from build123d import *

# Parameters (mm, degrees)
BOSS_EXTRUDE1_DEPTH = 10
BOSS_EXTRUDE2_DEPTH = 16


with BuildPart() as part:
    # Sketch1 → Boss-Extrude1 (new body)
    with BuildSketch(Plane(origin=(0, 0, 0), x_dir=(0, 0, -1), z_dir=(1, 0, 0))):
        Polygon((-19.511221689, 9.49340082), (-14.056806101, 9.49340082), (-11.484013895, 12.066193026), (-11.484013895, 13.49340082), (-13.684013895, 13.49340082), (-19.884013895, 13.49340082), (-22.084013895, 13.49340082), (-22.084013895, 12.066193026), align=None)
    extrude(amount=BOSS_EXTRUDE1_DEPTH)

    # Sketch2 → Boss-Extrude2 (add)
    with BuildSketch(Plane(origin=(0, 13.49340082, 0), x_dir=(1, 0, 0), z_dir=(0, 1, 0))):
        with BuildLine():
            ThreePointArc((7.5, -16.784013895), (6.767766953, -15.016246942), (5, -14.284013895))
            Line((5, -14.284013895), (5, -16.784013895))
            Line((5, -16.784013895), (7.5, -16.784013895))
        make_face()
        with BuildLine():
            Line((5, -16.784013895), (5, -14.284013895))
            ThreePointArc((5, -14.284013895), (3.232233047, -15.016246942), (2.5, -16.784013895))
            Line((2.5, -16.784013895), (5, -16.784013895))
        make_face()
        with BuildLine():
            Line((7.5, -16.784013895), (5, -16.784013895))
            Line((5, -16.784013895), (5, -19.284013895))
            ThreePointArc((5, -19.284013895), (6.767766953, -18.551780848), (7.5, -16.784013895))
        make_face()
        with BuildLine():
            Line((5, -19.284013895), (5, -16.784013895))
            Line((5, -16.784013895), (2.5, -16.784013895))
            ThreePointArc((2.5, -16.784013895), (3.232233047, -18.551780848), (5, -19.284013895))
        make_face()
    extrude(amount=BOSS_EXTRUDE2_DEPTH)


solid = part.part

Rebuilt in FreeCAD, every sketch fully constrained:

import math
import FreeCAD as App
import Part
import Sketcher
Q = App.Units.Quantity

doc = App.newDocument("Part")
body = doc.addObject("PartDesign::Body", "Body")

sketch1 = doc.addObject("Sketcher::SketchObject", "Sketch")
body.addObject(sketch1)
sketch1.AttachmentSupport = (doc.YZ_Plane, [""])
sketch1.MapMode = "FlatFace"
sketch1.addGeometry(Part.LineSegment(App.Vector(9.5, 19.5, 0), App.Vector(9.5, 14.1, 0)), False)
sketch1.addGeometry(Part.LineSegment(App.Vector(9.5, 14.1, 0), App.Vector(12.1, 11.5, 0)), False)
sketch1.addGeometry(Part.LineSegment(App.Vector(12.1, 11.5, 0), App.Vector(13.5, 11.5, 0)), False)
sketch1.addGeometry(Part.LineSegment(App.Vector(13.5, 11.5, 0), App.Vector(13.5, 22.1, 0)), False)
sketch1.addGeometry(Part.LineSegment(App.Vector(13.5, 22.1, 0), App.Vector(12.1, 22.1, 0)), False)
sketch1.addGeometry(Part.LineSegment(App.Vector(12.1, 22.1, 0), App.Vector(9.5, 19.5, 0)), False)
sketch1.addConstraint(Sketcher.Constraint("Coincident", 0, 2, 1, 1))
sketch1.addConstraint(Sketcher.Constraint("Coincident", 1, 2, 2, 1))
sketch1.addConstraint(Sketcher.Constraint("Coincident", 2, 2, 3, 1))
sketch1.addConstraint(Sketcher.Constraint("Coincident", 3, 2, 4, 1))
sketch1.addConstraint(Sketcher.Constraint("Coincident", 4, 2, 5, 1))
sketch1.addConstraint(Sketcher.Constraint("Coincident", 5, 2, 0, 1))
sketch1.addConstraint(Sketcher.Constraint("Vertical", 0))
sketch1.addConstraint(Sketcher.Constraint("Horizontal", 2))
sketch1.addConstraint(Sketcher.Constraint("Vertical", 3))
sketch1.addConstraint(Sketcher.Constraint("Horizontal", 4))
sketch1.addConstraint(Sketcher.Constraint("Perpendicular", 1, 5))
sketch1.addConstraint(Sketcher.Constraint("Vertical", 1, 2, 4, 2))
sketch1.addConstraint(Sketcher.Constraint("Equal", 1, 5))
sketch1.addConstraint(Sketcher.Constraint("DistanceY", 3, 1, 3, 2, Q("10.6 mm")))
sketch1.addConstraint(Sketcher.Constraint("DistanceX", 0, 2, 2, 2, Q("4 mm")))
sketch1.addConstraint(Sketcher.Constraint("DistanceX", -1, 1, 0, 2, Q("9.493401 mm")))
sketch1.addConstraint(Sketcher.Constraint("DistanceX", 2, 1, 2, 2, Q("1.427208 mm")))
sketch1.addConstraint(Sketcher.Constraint("DistanceY", -1, 1, 5, 2, Q("19.511222 mm")))
pad1 = doc.addObject("PartDesign::Pad", "Pad")
body.addObject(pad1)
pad1.Profile = sketch1
pad1.Length = 10

sketch2 = doc.addObject("Sketcher::SketchObject", "Sketch001")
body.addObject(sketch2)
sketch2.AttachmentSupport = (doc.XZ_Plane, [""])
sketch2.MapMode = "FlatFace"
sketch2.AttachmentOffset = App.Placement(App.Vector(0, 0, -13.493401), App.Rotation())
sketch2.addGeometry(Part.ArcOfCircle(Part.Circle(App.Vector(5, 16.8, 0), App.Vector(0, 0, 1), 2.5), math.radians(180), math.radians(270)), False)
sketch2.addGeometry(Part.ArcOfCircle(Part.Circle(App.Vector(5, 16.8, 0), App.Vector(0, 0, 1), 2.5), math.radians(90), math.radians(180)), False)
sketch2.addGeometry(Part.ArcOfCircle(Part.Circle(App.Vector(5, 16.8, 0), App.Vector(0, 0, 1), 2.5), math.radians(0), math.radians(90)), False)
sketch2.addGeometry(Part.ArcOfCircle(Part.Circle(App.Vector(5, 16.8, 0), App.Vector(0, 0, 1), 2.5), math.radians(-90), math.radians(0)), False)
sketch2.addConstraint(Sketcher.Constraint("Tangent", 0, 1, 1, 2))
sketch2.addConstraint(Sketcher.Constraint("Tangent", 1, 1, 2, 2))
sketch2.addConstraint(Sketcher.Constraint("Tangent", 2, 1, 3, 2))
sketch2.addConstraint(Sketcher.Constraint("Tangent", 3, 1, 0, 2))
sketch2.addConstraint(Sketcher.Constraint("Equal", 0, 1))
sketch2.addConstraint(Sketcher.Constraint("Horizontal", 3, 3, 0, 1))
sketch2.addConstraint(Sketcher.Constraint("Horizontal", 0, 1, 2, 1))
sketch2.addConstraint(Sketcher.Constraint("Vertical", 3, 3, 1, 1))
sketch2.addConstraint(Sketcher.Constraint("Vertical", 1, 1, 3, 1))
sketch2.addConstraint(Sketcher.Constraint("Radius", 0, Q("2.5 mm")))
sketch2.addConstraint(Sketcher.Constraint("DistanceX", -1, 1, 0, 3, Q("5 mm")))
sketch2.addConstraint(Sketcher.Constraint("DistanceY", -1, 1, 0, 3, Q("16.784014 mm")))
pad2 = doc.addObject("PartDesign::Pad", "Pad001")
body.addObject(pad2)
pad2.Profile = sketch2
pad2.Length = 16
pad2.Reversed = True

doc.recompute()
